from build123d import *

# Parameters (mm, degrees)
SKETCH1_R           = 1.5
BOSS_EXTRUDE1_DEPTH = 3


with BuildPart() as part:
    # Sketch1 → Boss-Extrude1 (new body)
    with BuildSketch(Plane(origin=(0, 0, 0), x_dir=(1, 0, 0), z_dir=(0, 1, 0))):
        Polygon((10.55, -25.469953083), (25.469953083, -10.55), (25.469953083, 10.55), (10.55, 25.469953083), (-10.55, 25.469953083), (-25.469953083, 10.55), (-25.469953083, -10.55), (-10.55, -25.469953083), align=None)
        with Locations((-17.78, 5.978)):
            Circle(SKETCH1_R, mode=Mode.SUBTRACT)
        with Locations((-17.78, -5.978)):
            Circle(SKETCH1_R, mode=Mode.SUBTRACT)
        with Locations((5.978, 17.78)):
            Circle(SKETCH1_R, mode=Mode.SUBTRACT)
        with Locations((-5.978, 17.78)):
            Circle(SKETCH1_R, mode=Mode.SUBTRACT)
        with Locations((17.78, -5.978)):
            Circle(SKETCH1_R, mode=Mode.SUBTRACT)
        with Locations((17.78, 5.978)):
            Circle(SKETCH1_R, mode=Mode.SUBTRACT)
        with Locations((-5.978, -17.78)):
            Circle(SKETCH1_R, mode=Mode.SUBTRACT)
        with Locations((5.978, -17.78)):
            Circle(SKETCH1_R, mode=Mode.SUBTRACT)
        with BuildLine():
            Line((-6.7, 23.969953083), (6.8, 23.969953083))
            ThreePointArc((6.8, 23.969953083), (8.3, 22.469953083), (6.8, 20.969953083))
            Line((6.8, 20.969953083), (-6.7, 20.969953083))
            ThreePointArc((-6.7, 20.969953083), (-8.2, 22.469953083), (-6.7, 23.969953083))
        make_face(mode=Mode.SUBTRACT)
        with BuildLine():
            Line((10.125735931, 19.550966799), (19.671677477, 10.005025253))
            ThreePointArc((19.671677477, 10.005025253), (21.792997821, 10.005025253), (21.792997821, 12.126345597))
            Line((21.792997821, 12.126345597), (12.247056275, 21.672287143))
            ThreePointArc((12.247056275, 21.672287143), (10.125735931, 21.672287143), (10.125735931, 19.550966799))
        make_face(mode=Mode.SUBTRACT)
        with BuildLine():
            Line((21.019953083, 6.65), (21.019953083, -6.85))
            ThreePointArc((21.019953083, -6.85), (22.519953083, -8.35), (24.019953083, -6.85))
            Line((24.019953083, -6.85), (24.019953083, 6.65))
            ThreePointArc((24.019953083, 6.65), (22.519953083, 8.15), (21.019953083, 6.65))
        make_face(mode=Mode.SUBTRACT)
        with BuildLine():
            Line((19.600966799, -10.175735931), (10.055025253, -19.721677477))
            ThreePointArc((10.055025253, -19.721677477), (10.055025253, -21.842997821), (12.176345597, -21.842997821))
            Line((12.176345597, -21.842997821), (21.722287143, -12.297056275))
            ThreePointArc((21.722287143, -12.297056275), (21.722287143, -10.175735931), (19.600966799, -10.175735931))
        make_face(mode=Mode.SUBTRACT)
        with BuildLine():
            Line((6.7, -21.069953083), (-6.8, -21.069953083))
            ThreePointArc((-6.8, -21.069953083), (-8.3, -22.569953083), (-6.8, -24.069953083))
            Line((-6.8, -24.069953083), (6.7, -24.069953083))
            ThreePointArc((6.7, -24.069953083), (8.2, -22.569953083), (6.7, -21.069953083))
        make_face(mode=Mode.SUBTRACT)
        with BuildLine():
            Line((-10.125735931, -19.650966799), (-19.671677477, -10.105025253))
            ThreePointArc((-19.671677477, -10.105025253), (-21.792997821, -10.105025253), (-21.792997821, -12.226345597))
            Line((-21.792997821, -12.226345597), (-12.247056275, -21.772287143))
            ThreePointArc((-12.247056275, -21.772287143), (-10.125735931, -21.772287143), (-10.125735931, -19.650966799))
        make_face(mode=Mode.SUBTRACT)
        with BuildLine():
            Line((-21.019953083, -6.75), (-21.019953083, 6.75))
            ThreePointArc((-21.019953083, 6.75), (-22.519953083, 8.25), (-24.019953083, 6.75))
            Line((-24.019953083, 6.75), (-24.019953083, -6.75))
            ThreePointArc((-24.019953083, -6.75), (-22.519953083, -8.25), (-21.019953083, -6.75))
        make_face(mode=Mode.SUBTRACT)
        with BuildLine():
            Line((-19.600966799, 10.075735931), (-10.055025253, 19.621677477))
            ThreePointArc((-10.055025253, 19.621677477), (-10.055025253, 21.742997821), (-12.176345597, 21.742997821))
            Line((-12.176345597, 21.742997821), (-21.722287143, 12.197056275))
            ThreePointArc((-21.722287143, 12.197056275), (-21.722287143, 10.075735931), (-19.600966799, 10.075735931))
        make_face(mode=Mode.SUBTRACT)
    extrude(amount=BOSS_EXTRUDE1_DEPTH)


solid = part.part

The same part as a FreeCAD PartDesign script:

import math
import FreeCAD as App
import Part
import Sketcher
from FreeCAD import Vector
Q = App.Units.Quantity

doc = App.newDocument("Part")
params = doc.addObject("Spreadsheet::Sheet", "Params")
for row, (alias, value) in enumerate([
    ("sketch1_diameter", "3 mm"),
    ("sketch1_width", "21.1 mm"),
    ("sketch1_width2", "13.5 mm"),
    ("sketch1_length", "21.1 mm"),
    ("sketch1_length2", "13.5 mm"),
    ("pad1_length", "3 mm"),
], start=1):
    params.set(f"A{row}", alias)
    params.set(f"B{row}", "=" + value)
    params.setAlias(f"B{row}", alias)

body = doc.addObject("PartDesign::Body", "Body")

sketch1 = body.newObject("Sketcher::SketchObject", "Sketch")
sketch1.AttachmentSupport = (doc.getObject("XZ_Plane"), [""])
sketch1.MapMode = "FlatFace"
sketch1.addGeometry(Part.LineSegment(Vector(10.55, 25.469953, 0), Vector(25.469953, 10.55, 0)), False)
sketch1.addGeometry(Part.LineSegment(Vector(25.469953, 10.55, 0), Vector(25.469953, -10.55, 0)), False)
sketch1.addGeometry(Part.LineSegment(Vector(25.469953, -10.55, 0), Vector(10.55, -25.469953, 0)), False)
sketch1.addGeometry(Part.LineSegment(Vector(10.55, -25.469953, 0), Vector(-10.55, -25.469953, 0)), False)
sketch1.addGeometry(Part.LineSegment(Vector(-10.55, -25.469953, 0), Vector(-25.469953, -10.55, 0)), False)
sketch1.addGeometry(Part.LineSegment(Vector(-25.469953, -10.55, 0), Vector(-25.469953, 10.55, 0)), False)
sketch1.addGeometry(Part.LineSegment(Vector(-25.469953, 10.55, 0), Vector(-10.55, 25.469953, 0)), False)
sketch1.addGeometry(Part.LineSegment(Vector(-10.55, 25.469953, 0), Vector(10.55, 25.469953, 0)), False)
sketch1.addGeometry(Part.LineSegment(Vector(-19.671677, 10.105025, 0), Vector(-10.125736, 19.650967, 0)), False)
sketch1.addGeometry(Part.ArcOfCircle(Part.Circle(Vector(-11.186396, 20.711627, 0), Vector(0, 0, 1), 1.5), math.radians(-45), math.radians(135)), False)
sketch1.addGeometry(Part.LineSegment(Vector(-12.247056, 21.772287, 0), Vector(-21.792998, 12.226346, 0)), False)
sketch1.addGeometry(Part.ArcOfCircle(Part.Circle(Vector(-20.732338, 11.165685, 0), Vector(0, 0, 1), 1.5), math.radians(135), math.radians(315)), False)
sketch1.addGeometry(Part.LineSegment(Vector(-6.8, 21.069953, 0), Vector(6.7, 21.069953, 0)), False)
sketch1.addGeometry(Part.ArcOfCircle(Part.Circle(Vector(6.7, 22.569953, 0), Vector(0, 0, 1), 1.5), math.radians(-90), math.radians(90)), False)
sketch1.addGeometry(Part.LineSegment(Vector(6.7, 24.069953, 0), Vector(-6.8, 24.069953, 0)), False)
sketch1.addGeometry(Part.ArcOfCircle(Part.Circle(Vector(-6.8, 22.569953, 0), Vector(0, 0, 1), 1.5), math.radians(90), math.radians(270)), False)
sketch1.addGeometry(Part.Circle(Vector(-5.978, 17.78, 0), Vector(0, 0, 1), 1.5), False)
sketch1.addGeometry(Part.Circle(Vector(-17.78, 5.978, 0), Vector(0, 0, 1), 1.5), False)
sketch1.addGeometry(Part.Circle(Vector(5.978, 17.78, 0), Vector(0, 0, 1), 1.5), False)
sketch1.addGeometry(Part.LineSegment(Vector(10.055025, 19.721677, 0), Vector(19.600967, 10.175736, 0)), False)
sketch1.addGeometry(Part.ArcOfCircle(Part.Circle(Vector(20.661627, 11.236396, 0), Vector(0, 0, 1), 1.5), math.radians(-135), math.radians(45)), False)
sketch1.addGeometry(Part.LineSegment(Vector(21.722287, 12.297056, 0), Vector(12.176346, 21.842998, 0)), False)
sketch1.addGeometry(Part.ArcOfCircle(Part.Circle(Vector(11.115685, 20.782338, 0), Vector(0, 0, 1), 1.5), math.radians(45), math.radians(225)), False)
sketch1.addGeometry(Part.Circle(Vector(17.78, 5.978, 0), Vector(0, 0, 1), 1.5), False)
sketch1.addGeometry(Part.LineSegment(Vector(21.019953, 6.85, 0), Vector(21.019953, -6.65, 0)), False)
sketch1.addGeometry(Part.ArcOfCircle(Part.Circle(Vector(22.519953, -6.65, 0), Vector(0, 0, 1), 1.5), math.radians(180), math.radians(360)), False)
sketch1.addGeometry(Part.LineSegment(Vector(24.019953, -6.65, 0), Vector(24.019953, 6.85, 0)), False)
sketch1.addGeometry(Part.ArcOfCircle(Part.Circle(Vector(22.519953, 6.85, 0), Vector(0, 0, 1), 1.5), math.radians(0), math.radians(180)), False)
sketch1.addGeometry(Part.LineSegment(Vector(-21.019953, -6.75, 0), Vector(-21.019953, 6.75, 0)), False)
sketch1.addGeometry(Part.ArcOfCircle(Part.Circle(Vector(-22.519953, 6.75, 0), Vector(0, 0, 1), 1.5), math.radians(0), math.radians(180)), False)
sketch1.addGeometry(Part.LineSegment(Vector(-24.019953, 6.75, 0), Vector(-24.019953, -6.75, 0)), False)
sketch1.addGeometry(Part.ArcOfCircle(Part.Circle(Vector(-22.519953, -6.75, 0), Vector(0, 0, 1), 1.5), math.radians(180), math.radians(360)), False)
sketch1.addGeometry(Part.Circle(Vector(-17.78, -5.978, 0), Vector(0, 0, 1), 1.5), False)
sketch1.addGeometry(Part.LineSegment(Vector(-10.055025, -19.621677, 0), Vector(-19.600967, -10.075736, 0)), False)
sketch1.addGeometry(Part.ArcOfCircle(Part.Circle(Vector(-20.661627, -11.136396, 0), Vector(0, 0, 1), 1.5), math.radians(45), math.radians(225)), False)
sketch1.addGeometry(Part.LineSegment(Vector(-21.722287, -12.197056, 0), Vector(-12.176346, -21.742998, 0)), False)
sketch1.addGeometry(Part.ArcOfCircle(Part.Circle(Vector(-11.115685, -20.682338, 0), Vector(0, 0, 1), 1.5), math.radians(-135), math.radians(45)), False)
sketch1.addGeometry(Part.Circle(Vector(-5.978, -17.78, 0), Vector(0, 0, 1), 1.5), False)
sketch1.addGeometry(Part.Circle(Vector(17.78, -5.978, 0), Vector(0, 0, 1), 1.5), False)
sketch1.addGeometry(Part.Circle(Vector(5.978, -17.78, 0), Vector(0, 0, 1), 1.5), False)
sketch1.addGeometry(Part.ArcOfCircle(Part.Circle(Vector(-6.7, -22.469953, 0), Vector(0, 0, 1), 1.5), math.radians(90), math.radians(270)), False)
sketch1.addGeometry(Part.LineSegment(Vector(-6.7, -23.969953, 0), Vector(6.8, -23.969953, 0)), False)
sketch1.addGeometry(Part.ArcOfCircle(Part.Circle(Vector(6.8, -22.469953, 0), Vector(0, 0, 1), 1.5), math.radians(-90), math.radians(90)), False)
sketch1.addGeometry(Part.LineSegment(Vector(6.8, -20.969953, 0), Vector(-6.7, -20.969953, 0)), False)
sketch1.addGeometry(Part.LineSegment(Vector(19.671677, -10.005025, 0), Vector(10.125736, -19.550967, 0)), False)
sketch1.addGeometry(Part.ArcOfCircle(Part.Circle(Vector(11.186396, -20.611627, 0), Vector(0, 0, 1), 1.5), math.radians(135), math.radians(315)), False)
sketch1.addGeometry(Part.LineSegment(Vector(12.247056, -21.672287, 0), Vector(21.792998, -12.126346, 0)), False)
sketch1.addGeometry(Part.ArcOfCircle(Part.Circle(Vector(20.732338, -11.065685, 0), Vector(0, 0, 1), 1.5), math.radians(-45), math.radians(135)), False)
sketch1.addConstraint(Sketcher.Constraint("Coincident", 0, 2, 1, 1))
sketch1.addConstraint(Sketcher.Constraint("Coincident", 1, 2, 2, 1))
sketch1.addConstraint(Sketcher.Constraint("Coincident", 2, 2, 3, 1))
sketch1.addConstraint(Sketcher.Constraint("Coincident", 3, 2, 4, 1))
sketch1.addConstraint(Sketcher.Constraint("Coincident", 4, 2, 5, 1))
sketch1.addConstraint(Sketcher.Constraint("Coincident", 5, 2, 6, 1))
sketch1.addConstraint(Sketcher.Constraint("Coincident", 6, 2, 7, 1))
sketch1.addConstraint(Sketcher.Constraint("Coincident", 7, 2, 0, 1))
sketch1.addConstraint(Sketcher.Constraint("Tangent", 8, 2, 9, 1))
sketch1.addConstraint(Sketcher.Constraint("Tangent", 9, 2, 10, 1))
sketch1.addConstraint(Sketcher.Constraint("Tangent", 10, 2, 11, 1))
sketch1.addConstraint(Sketcher.Constraint("Tangent", 11, 2, 8, 1))
sketch1.addConstraint(Sketcher.Constraint("Tangent", 12, 2, 13, 1))
sketch1.addConstraint(Sketcher.Constraint("Tangent", 13, 2, 14, 1))
sketch1.addConstraint(Sketcher.Constraint("Tangent", 14, 2, 15, 1))
sketch1.addConstraint(Sketcher.Constraint("Tangent", 15, 2, 12, 1))
sketch1.addConstraint(Sketcher.Constraint("Tangent", 19, 2, 20, 1))
sketch1.addConstraint(Sketcher.Constraint("Tangent", 20, 2, 21, 1))
sketch1.addConstraint(Sketcher.Constraint("Tangent", 21, 2, 22, 1))
sketch1.addConstraint(Sketcher.Constraint("Tangent", 22, 2, 19, 1))
sketch1.addConstraint(Sketcher.Constraint("Tangent", 24, 2, 25, 1))
sketch1.addConstraint(Sketcher.Constraint("Tangent", 25, 2, 26, 1))
sketch1.addConstraint(Sketcher.Constraint("Tangent", 26, 2, 27, 1))
sketch1.addConstraint(Sketcher.Constraint("Tangent", 27, 2, 24, 1))
sketch1.addConstraint(Sketcher.Constraint("Tangent", 28, 2, 29, 1))
sketch1.addConstraint(Sketcher.Constraint("Tangent", 29, 2, 30, 1))
sketch1.addConstraint(Sketcher.Constraint("Tangent", 30, 2, 31, 1))
sketch1.addConstraint(Sketcher.Constraint("Tangent", 31, 2, 28, 1))
sketch1.addConstraint(Sketcher.Constraint("Tangent", 33, 2, 34, 1))
sketch1.addConstraint(Sketcher.Constraint("Tangent", 34, 2, 35, 1))
sketch1.addConstraint(Sketcher.Constraint("Tangent", 35, 2, 36, 1))
sketch1.addConstraint(Sketcher.Constraint("Tangent", 36, 2, 33, 1))
sketch1.addConstraint(Sketcher.Constraint("Tangent", 40, 2, 41, 1))
sketch1.addConstraint(Sketcher.Constraint("Tangent", 41, 2, 42, 1))
sketch1.addConstraint(Sketcher.Constraint("Tangent", 42, 2, 43, 1))
sketch1.addConstraint(Sketcher.Constraint("Tangent", 43, 2, 40, 1))
sketch1.addConstraint(Sketcher.Constraint("Tangent", 44, 2, 45, 1))
sketch1.addConstraint(Sketcher.Constraint("Tangent", 45, 2, 46, 1))
sketch1.addConstraint(Sketcher.Constraint("Tangent", 46, 2, 47, 1))
sketch1.addConstraint(Sketcher.Constraint("Tangent", 47, 2, 44, 1))
sketch1.addConstraint(Sketcher.Constraint("Vertical", 1))
sketch1.addConstraint(Sketcher.Constraint("Horizontal", 3))
sketch1.addConstraint(Sketcher.Constraint("Vertical", 5))
sketch1.addConstraint(Sketcher.Constraint("Horizontal", 7))
sketch1.addConstraint(Sketcher.Constraint("Horizontal", 12))
sketch1.addConstraint(Sketcher.Constraint("Horizontal", 14))
sketch1.addConstraint(Sketcher.Constraint("Vertical", 24))
sketch1.addConstraint(Sketcher.Constraint("Vertical", 26))
sketch1.addConstraint(Sketcher.Constraint("Vertical", 28))
sketch1.addConstraint(Sketcher.Constraint("Vertical", 30))
sketch1.addConstraint(Sketcher.Constraint("Horizontal", 41))
sketch1.addConstraint(Sketcher.Constraint("Horizontal", 43))
sketch1.addConstraint(Sketcher.Constraint("Equal", 9, 11))
sketch1.addConstraint(Sketcher.Constraint("Equal", 11, 13))
sketch1.addConstraint(Sketcher.Constraint("Equal", 15, 16))
sketch1.addConstraint(Sketcher.Constraint("Equal", 16, 17))
sketch1.addConstraint(Sketcher.Constraint("Equal", 17, 18))
sketch1.addConstraint(Sketcher.Constraint("Equal", 18, 20))
sketch1.addConstraint(Sketcher.Constraint("Equal", 20, 22))
sketch1.addConstraint(Sketcher.Constraint("Equal", 22, 23))
sketch1.addConstraint(Sketcher.Constraint("Equal", 23, 25))
sketch1.addConstraint(Sketcher.Constraint("Equal", 27, 29))
sketch1.addConstraint(Sketcher.Constraint("Equal", 31, 32))
sketch1.addConstraint(Sketcher.Constraint("Equal", 32, 34))
sketch1.addConstraint(Sketcher.Constraint("Equal", 34, 36))
sketch1.addConstraint(Sketcher.Constraint("Equal", 36, 37))
sketch1.addConstraint(Sketcher.Constraint("Equal", 37, 38))
sketch1.addConstraint(Sketcher.Constraint("Equal", 38, 39))
sketch1.addConstraint(Sketcher.Constraint("Equal", 39, 40))
sketch1.addConstraint(Sketcher.Constraint("Equal", 42, 45))
sketch1.addConstraint(Sketcher.Constraint("Equal", 45, 47))
sketch1.addConstraint(Sketcher.Constraint("Symmetric", 23, 3, 32, 3, -1, 1))
sketch1.addConstraint(Sketcher.Constraint("Symmetric", 18, 3, 37, 3, -1, 1))
sketch1.addConstraint(Sketcher.Constraint("Symmetric", 17, 3, 38, 3, -1, 1))
sketch1.addConstraint(Sketcher.Constraint("Symmetric", 16, 3, 39, 3, -1, 1))
sketch1.addConstraint(Sketcher.Constraint("Symmetric", 0, 2, 4, 2, -1, 1))
sketch1.addConstraint(Sketcher.Constraint("Symmetric", 2, 2, 6, 2, -1, 1))
sketch1.addConstraint(Sketcher.Constraint("Symmetric", 16, 3, 18, 3, -2))
sketch1.addConstraint(Sketcher.Constraint("Symmetric", 17, 3, 23, 3, -2))
sketch1.addConstraint(Sketcher.Constraint("Perpendicular", 0, 2))
sketch1.addConstraint(Sketcher.Constraint("Perpendicular", 2, 4))
sketch1.addConstraint(Sketcher.Constraint("Perpendicular", 4, 6))
sketch1.addConstraint(Sketcher.Constraint("Parallel", 6, 8))
sketch1.addConstraint(Sketcher.Constraint("Perpendicular", 10, 19))
sketch1.addConstraint(Sketcher.Constraint("Parallel", 21, 33))
sketch1.addConstraint(Sketcher.Constraint("Perpendicular", 35, 44))
sketch1.addConstraint(Sketcher.Constraint("Horizontal", 1, 2, 4, 2))
sketch1.addConstraint(Sketcher.Constraint("Vertical", 3, 2, 6, 2))
sketch1.addConstraint(Sketcher.Constraint("Equal", 14, 41))
sketch1.addConstraint(Sketcher.Constraint("Equal", 7, 1))
sketch1.addConstraint(Sketcher.Constraint("Equal", 43, 24))
sketch1.addConstraint(Sketcher.Constraint("Equal", 26, 28))
sketch1.addConstraint(Sketcher.Constraint("Equal", 10, 19))
sketch1.addConstraint(Sketcher.Constraint("Equal", 21, 33))
sketch1.addConstraint(Sketcher.Constraint("Equal", 35, 44))
sketch1.addConstraint(Sketcher.Constraint("Diameter", 16, Q("3 mm")))
sketch1.addConstraint(Sketcher.Constraint("DistanceX", 3, 2, 3, 1, Q("21.1 mm")))
sketch1.addConstraint(Sketcher.Constraint("DistanceX", 12, 1, 12, 2, Q("13.5 mm")))
sketch1.addConstraint(Sketcher.Constraint("Distance", 0, Q("21.1 mm")))
sketch1.addConstraint(Sketcher.Constraint("Distance", 8, Q("13.5 mm")))
sketch1.addConstraint(Sketcher.Constraint("DistanceX", -1, 1, 13, 3, Q("6.7 mm")))
sketch1.addConstraint(Sketcher.Constraint("DistanceX", 40, 3, -1, 1, Q("6.7 mm")))
sketch1.addConstraint(Sketcher.Constraint("DistanceY", -1, 1, 16, 3, Q("17.78 mm")))
sketch1.addConstraint(Sketcher.Constraint("DistanceX", 17, 3, -1, 1, Q("17.78 mm")))
sketch1.addConstraint(Sketcher.Constraint("DistanceY", 25, 3, -1, 1, Q("6.65 mm")))
sketch1.addConstraint(Sketcher.Constraint("DistanceY", -1, 1, 29, 3, Q("6.75 mm")))
sketch1.addConstraint(Sketcher.Constraint("DistanceX", 16, 3, -1, 1, Q("5.978 mm")))
sketch1.addConstraint(Sketcher.Constraint("DistanceY", -1, 1, 17, 3, Q("5.978 mm")))
sketch1.addConstraint(Sketcher.Constraint("DistanceX", 9, 3, -1, 1, Q("11.186396 mm")))
sketch1.addConstraint(Sketcher.Constraint("DistanceY", -1, 1, 9, 3, Q("20.711627 mm")))
sketch1.addConstraint(Sketcher.Constraint("DistanceY", -1, 1, 13, 3, Q("22.569953 mm")))
sketch1.addConstraint(Sketcher.Constraint("DistanceX", -1, 1, 20, 3, Q("20.661627 mm")))
sketch1.addConstraint(Sketcher.Constraint("DistanceY", -1, 1, 20, 3, Q("11.236396 mm")))
sketch1.addConstraint(Sketcher.Constraint("DistanceX", -1, 1, 25, 3, Q("22.519953 mm")))
sketch1.addConstraint(Sketcher.Constraint("DistanceX", 29, 3, -1, 1, Q("22.519953 mm")))
sketch1.addConstraint(Sketcher.Constraint("DistanceX", 34, 3, -1, 1, Q("20.661627 mm")))
sketch1.addConstraint(Sketcher.Constraint("DistanceY", 34, 3, -1, 1, Q("11.136396 mm")))
sketch1.addConstraint(Sketcher.Constraint("DistanceY", 40, 3, -1, 1, Q("22.469953 mm")))
sketch1.addConstraint(Sketcher.Constraint("DistanceX", -1, 1, 45, 3, Q("11.186396 mm")))
sketch1.addConstraint(Sketcher.Constraint("DistanceY", 45, 3, -1, 1, Q("20.611627 mm")))
sketch1.setExpression("Constraints[95]", "Params.sketch1_diameter")
sketch1.setExpression("Constraints[96]", "Params.sketch1_width")
sketch1.setExpression("Constraints[97]", "Params.sketch1_width2")
sketch1.setExpression("Constraints[98]", "Params.sketch1_length")
sketch1.setExpression("Constraints[99]", "Params.sketch1_length2")
pad1 = body.newObject("PartDesign::Pad", "Pad")
pad1.Profile = sketch1
pad1.setExpression("Length", "Params.pad1_length")
pad1.Reversed = True

doc.recompute()
